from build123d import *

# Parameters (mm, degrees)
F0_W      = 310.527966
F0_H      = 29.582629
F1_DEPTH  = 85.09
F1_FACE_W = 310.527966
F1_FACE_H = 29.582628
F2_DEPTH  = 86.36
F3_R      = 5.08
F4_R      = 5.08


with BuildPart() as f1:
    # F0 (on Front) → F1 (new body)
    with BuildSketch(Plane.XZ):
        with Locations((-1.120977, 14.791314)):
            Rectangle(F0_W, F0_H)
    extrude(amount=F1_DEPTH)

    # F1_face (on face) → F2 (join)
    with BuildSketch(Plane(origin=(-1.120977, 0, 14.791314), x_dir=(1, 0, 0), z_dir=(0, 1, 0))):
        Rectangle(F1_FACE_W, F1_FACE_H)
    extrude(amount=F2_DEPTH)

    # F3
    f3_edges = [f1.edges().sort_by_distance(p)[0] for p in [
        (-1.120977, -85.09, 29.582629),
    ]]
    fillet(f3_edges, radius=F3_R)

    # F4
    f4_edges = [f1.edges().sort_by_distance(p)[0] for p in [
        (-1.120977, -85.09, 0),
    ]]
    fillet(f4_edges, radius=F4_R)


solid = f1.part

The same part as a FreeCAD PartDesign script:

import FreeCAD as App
import Part
import Sketcher

V = App.Vector
Q = App.Units.Quantity


def edges_at(feature, points):
    """Names of the edges that pass closest to the given points."""
    edges = feature.Shape.Edges
    near = lambda p: min(range(len(edges)), key=lambda i: edges[i].distToShape(Part.Vertex(*p))[0])
    return sorted({f"Edge{near(p) + 1}" for p in points})

doc = App.newDocument("Part")
body = doc.addObject("PartDesign::Body", "Body")

# Sketch on XZ plane
sketch1 = doc.addObject("Sketcher::SketchObject", "Sketch")
body.addObject(sketch1)
sketch1.AttachmentSupport = (doc.XZ_Plane, [""])
sketch1.MapMode = "FlatFace"
sketch1.addGeometry([
    Part.LineSegment(V(-156, 30, 0), V(-156, 0, 0)),
    Part.LineSegment(V(-156, 0, 0), V(154, 0, 0)),
    Part.LineSegment(V(154, 0, 0), V(154, 30, 0)),
    Part.LineSegment(V(154, 30, 0), V(-156, 30, 0)),
], False)
sketch1.addConstraint([
    Sketcher.Constraint("Coincident", 0, 2, 1, 1),
    Sketcher.Constraint("Coincident", 1, 2, 2, 1),
    Sketcher.Constraint("Coincident", 2, 2, 3, 1),
    Sketcher.Constraint("Coincident", 3, 2, 0, 1),
    Sketcher.Constraint("Vertical", 0),
    Sketcher.Constraint("Horizontal", 1),
    Sketcher.Constraint("Vertical", 2),
    Sketcher.Constraint("Horizontal", 3),
    Sketcher.Constraint("PointOnObject", 0, 2, -1),
    Sketcher.Constraint("DistanceY", 0, 2, 0, 1, Q("29.582629 mm")),
    Sketcher.Constraint("DistanceX", 1, 1, 1, 2, Q("310.527966 mm")),
    Sketcher.Constraint("DistanceX", 0, 2, -1, 1, Q("156.38496 mm")),
])
pad1 = doc.addObject("PartDesign::Pad", "Pad")
body.addObject(pad1)
pad1.Profile = sketch1
pad1.Length = Q("3.35 in")

# Sketch on XZ plane
sketch2 = doc.addObject("Sketcher::SketchObject", "Sketch001")
body.addObject(sketch2)
sketch2.AttachmentSupport = (doc.XZ_Plane, [""])
sketch2.MapMode = "FlatFace"
sketch2.addGeometry([
    Part.LineSegment(V(-156, 0, 0), V(-156, 30, 0)),
    Part.LineSegment(V(-156, 30, 0), V(154, 30, 0)),
    Part.LineSegment(V(154, 30, 0), V(154, 0, 0)),
    Part.LineSegment(V(154, 0, 0), V(-156, 0, 0)),
], False)
sketch2.addConstraint([
    Sketcher.Constraint("Coincident", 0, 2, 1, 1),
    Sketcher.Constraint("Coincident", 1, 2, 2, 1),
    Sketcher.Constraint("Coincident", 2, 2, 3, 1),
    Sketcher.Constraint("Coincident", 3, 2, 0, 1),
    Sketcher.Constraint("Vertical", 0),
    Sketcher.Constraint("Horizontal", 1),
    Sketcher.Constraint("Vertical", 2),
    Sketcher.Constraint("Horizontal", 3),
    Sketcher.Constraint("PointOnObject", 2, 2, -1),
    Sketcher.Constraint("DistanceX", 1, 1, 1, 2, Q("310.527966 mm")),
    Sketcher.Constraint("DistanceY", 0, 1, 0, 2, Q("29.582628 mm")),
    Sketcher.Constraint("DistanceX", 0, 2, -1, 1, Q("156.38496 mm")),
])
pad2 = doc.addObject("PartDesign::Pad", "Pad001")
body.addObject(pad2)
pad2.Profile = sketch2
pad2.Length = Q("3.4 in")
pad2.Reversed = True
doc.recompute()

fillet = doc.addObject("PartDesign::Fillet", "Fillet")
body.addObject(fillet)
fillet.Base = (pad2, edges_at(pad2, [(-1.121, -85.09, 29.583)]))
fillet.Radius = Q("0.2 in")
doc.recompute()

fillet2 = doc.addObject("PartDesign::Fillet", "Fillet001")
body.addObject(fillet2)
fillet2.Base = (fillet, edges_at(fillet, [(-1.121, -85.09, 0)]))
fillet2.Radius = Q("0.2 in")

doc.recompute()
